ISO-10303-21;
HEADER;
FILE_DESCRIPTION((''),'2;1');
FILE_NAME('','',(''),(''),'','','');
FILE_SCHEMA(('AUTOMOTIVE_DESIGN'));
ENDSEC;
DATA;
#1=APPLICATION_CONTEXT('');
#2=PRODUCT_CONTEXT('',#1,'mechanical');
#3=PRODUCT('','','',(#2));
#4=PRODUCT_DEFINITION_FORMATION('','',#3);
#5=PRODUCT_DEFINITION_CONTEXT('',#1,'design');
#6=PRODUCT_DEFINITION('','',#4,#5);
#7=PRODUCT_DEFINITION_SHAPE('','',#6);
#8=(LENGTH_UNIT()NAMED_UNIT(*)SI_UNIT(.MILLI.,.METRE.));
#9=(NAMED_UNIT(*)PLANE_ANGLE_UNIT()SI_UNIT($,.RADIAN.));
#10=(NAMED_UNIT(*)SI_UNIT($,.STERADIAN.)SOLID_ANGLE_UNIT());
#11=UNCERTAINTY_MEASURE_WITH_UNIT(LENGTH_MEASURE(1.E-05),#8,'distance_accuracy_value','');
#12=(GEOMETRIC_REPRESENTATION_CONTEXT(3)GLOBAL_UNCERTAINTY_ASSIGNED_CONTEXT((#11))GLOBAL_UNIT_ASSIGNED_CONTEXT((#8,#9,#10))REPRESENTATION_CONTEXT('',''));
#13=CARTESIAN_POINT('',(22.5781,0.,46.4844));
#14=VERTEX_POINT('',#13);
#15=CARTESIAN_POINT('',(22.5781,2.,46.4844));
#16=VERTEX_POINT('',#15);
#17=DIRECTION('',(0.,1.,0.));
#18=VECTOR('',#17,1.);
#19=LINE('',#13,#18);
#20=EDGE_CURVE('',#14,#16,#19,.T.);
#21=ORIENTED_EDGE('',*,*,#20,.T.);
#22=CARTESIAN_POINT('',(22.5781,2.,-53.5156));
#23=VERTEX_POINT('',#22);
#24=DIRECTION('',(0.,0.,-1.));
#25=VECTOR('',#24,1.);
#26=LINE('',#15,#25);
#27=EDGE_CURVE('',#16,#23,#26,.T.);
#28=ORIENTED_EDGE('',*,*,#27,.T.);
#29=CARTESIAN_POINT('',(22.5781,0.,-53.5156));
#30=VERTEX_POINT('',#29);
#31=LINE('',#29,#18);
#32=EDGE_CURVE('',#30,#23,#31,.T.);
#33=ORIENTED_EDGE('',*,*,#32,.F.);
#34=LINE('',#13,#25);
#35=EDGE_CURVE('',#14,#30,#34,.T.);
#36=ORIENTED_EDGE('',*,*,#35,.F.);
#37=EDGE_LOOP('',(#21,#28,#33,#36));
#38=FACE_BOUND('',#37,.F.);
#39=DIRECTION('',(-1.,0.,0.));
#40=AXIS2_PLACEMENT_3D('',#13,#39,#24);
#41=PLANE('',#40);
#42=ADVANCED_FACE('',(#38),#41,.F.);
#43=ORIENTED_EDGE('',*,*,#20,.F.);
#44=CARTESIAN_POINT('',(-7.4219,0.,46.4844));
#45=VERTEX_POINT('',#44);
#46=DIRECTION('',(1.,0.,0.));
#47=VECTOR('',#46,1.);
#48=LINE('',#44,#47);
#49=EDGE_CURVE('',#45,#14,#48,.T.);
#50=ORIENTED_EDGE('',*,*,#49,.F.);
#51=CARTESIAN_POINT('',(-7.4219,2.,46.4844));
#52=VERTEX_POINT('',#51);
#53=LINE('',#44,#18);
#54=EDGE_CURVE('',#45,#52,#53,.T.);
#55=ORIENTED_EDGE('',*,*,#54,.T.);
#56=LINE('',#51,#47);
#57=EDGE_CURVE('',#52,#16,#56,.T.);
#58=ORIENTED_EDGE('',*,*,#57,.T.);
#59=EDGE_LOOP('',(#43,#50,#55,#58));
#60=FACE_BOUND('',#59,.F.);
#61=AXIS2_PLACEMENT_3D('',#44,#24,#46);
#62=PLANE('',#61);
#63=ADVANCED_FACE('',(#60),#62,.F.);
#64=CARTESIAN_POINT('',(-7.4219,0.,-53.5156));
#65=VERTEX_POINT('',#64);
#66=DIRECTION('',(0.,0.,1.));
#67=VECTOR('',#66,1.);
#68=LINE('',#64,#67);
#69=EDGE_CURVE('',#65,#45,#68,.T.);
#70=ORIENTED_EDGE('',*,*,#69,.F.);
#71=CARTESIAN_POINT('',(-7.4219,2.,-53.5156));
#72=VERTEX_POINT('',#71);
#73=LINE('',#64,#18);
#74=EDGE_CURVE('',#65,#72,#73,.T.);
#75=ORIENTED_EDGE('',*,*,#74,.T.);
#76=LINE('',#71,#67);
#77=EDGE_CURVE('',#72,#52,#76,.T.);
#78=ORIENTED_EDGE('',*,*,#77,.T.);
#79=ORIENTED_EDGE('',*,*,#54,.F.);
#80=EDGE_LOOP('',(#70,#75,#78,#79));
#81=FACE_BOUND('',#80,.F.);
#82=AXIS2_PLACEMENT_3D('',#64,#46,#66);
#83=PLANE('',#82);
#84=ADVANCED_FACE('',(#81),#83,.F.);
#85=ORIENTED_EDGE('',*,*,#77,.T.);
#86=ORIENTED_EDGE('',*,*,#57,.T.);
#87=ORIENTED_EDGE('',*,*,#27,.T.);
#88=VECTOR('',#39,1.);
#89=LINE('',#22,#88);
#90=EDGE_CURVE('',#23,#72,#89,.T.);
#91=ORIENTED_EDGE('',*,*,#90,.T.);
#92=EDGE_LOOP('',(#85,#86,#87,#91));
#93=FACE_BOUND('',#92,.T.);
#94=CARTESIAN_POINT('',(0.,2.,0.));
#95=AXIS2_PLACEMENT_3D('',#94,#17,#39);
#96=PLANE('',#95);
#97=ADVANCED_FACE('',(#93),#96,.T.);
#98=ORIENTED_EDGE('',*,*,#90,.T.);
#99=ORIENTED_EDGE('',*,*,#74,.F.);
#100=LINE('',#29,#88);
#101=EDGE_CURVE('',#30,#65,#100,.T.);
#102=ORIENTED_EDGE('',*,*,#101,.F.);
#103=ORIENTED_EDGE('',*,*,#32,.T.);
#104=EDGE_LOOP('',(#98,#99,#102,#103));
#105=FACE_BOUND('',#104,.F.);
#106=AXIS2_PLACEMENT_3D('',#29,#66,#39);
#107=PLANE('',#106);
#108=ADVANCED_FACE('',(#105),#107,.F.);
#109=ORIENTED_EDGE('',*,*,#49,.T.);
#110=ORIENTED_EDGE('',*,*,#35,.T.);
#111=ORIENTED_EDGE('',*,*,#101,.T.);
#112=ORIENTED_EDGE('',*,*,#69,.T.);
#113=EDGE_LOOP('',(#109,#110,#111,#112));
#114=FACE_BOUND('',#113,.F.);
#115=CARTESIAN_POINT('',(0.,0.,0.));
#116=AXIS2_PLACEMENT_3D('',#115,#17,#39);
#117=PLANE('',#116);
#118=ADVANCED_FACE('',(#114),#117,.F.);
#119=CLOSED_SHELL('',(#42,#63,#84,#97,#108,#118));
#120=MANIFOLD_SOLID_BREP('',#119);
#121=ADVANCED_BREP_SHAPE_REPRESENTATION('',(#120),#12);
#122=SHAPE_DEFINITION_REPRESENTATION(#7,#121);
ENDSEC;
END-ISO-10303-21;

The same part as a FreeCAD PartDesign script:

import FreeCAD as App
import Part
import Sketcher
from FreeCAD import Vector
Q = App.Units.Quantity

doc = App.newDocument("Part")
body = doc.addObject("PartDesign::Body", "Body")

# Sketch on XZ plane
sketch1 = doc.addObject("Sketcher::SketchObject", "Sketch")
body.addObject(sketch1)
sketch1.AttachmentSupport = (doc.XZ_Plane, [""])
sketch1.MapMode = "FlatFace"
sketch1.addGeometry([
    Part.LineSegment(Vector(-7, -54, 0), Vector(-7, 46, 0)),
    Part.LineSegment(Vector(-7, 46, 0), Vector(23, 46, 0)),
    Part.LineSegment(Vector(23, 46, 0), Vector(23, -54, 0)),
    Part.LineSegment(Vector(23, -54, 0), Vector(-7, -54, 0)),
], False)
sketch1.addConstraint([
    Sketcher.Constraint("Coincident", 0, 2, 1, 1),
    Sketcher.Constraint("Coincident", 1, 2, 2, 1),
    Sketcher.Constraint("Coincident", 2, 2, 3, 1),
    Sketcher.Constraint("Coincident", 3, 2, 0, 1),
    Sketcher.Constraint("Vertical", 0),
    Sketcher.Constraint("Horizontal", 1),
    Sketcher.Constraint("Vertical", 2),
    Sketcher.Constraint("Horizontal", 3),
    Sketcher.Constraint("DistanceY", 0, 1, 0, 2, Q("100 mm")),
    Sketcher.Constraint("DistanceX", 1, 1, 1, 2, Q("30 mm")),
    Sketcher.Constraint("DistanceX", 0, 2, -1, 1, Q("7.422 mm")),
    Sketcher.Constraint("DistanceY", -1, 1, 0, 2, Q("46.4844 mm")),
])
pad1 = doc.addObject("PartDesign::Pad", "Pad")
body.addObject(pad1)
pad1.Profile = sketch1
pad1.Length = 2
pad1.Reversed = True

doc.recompute()
